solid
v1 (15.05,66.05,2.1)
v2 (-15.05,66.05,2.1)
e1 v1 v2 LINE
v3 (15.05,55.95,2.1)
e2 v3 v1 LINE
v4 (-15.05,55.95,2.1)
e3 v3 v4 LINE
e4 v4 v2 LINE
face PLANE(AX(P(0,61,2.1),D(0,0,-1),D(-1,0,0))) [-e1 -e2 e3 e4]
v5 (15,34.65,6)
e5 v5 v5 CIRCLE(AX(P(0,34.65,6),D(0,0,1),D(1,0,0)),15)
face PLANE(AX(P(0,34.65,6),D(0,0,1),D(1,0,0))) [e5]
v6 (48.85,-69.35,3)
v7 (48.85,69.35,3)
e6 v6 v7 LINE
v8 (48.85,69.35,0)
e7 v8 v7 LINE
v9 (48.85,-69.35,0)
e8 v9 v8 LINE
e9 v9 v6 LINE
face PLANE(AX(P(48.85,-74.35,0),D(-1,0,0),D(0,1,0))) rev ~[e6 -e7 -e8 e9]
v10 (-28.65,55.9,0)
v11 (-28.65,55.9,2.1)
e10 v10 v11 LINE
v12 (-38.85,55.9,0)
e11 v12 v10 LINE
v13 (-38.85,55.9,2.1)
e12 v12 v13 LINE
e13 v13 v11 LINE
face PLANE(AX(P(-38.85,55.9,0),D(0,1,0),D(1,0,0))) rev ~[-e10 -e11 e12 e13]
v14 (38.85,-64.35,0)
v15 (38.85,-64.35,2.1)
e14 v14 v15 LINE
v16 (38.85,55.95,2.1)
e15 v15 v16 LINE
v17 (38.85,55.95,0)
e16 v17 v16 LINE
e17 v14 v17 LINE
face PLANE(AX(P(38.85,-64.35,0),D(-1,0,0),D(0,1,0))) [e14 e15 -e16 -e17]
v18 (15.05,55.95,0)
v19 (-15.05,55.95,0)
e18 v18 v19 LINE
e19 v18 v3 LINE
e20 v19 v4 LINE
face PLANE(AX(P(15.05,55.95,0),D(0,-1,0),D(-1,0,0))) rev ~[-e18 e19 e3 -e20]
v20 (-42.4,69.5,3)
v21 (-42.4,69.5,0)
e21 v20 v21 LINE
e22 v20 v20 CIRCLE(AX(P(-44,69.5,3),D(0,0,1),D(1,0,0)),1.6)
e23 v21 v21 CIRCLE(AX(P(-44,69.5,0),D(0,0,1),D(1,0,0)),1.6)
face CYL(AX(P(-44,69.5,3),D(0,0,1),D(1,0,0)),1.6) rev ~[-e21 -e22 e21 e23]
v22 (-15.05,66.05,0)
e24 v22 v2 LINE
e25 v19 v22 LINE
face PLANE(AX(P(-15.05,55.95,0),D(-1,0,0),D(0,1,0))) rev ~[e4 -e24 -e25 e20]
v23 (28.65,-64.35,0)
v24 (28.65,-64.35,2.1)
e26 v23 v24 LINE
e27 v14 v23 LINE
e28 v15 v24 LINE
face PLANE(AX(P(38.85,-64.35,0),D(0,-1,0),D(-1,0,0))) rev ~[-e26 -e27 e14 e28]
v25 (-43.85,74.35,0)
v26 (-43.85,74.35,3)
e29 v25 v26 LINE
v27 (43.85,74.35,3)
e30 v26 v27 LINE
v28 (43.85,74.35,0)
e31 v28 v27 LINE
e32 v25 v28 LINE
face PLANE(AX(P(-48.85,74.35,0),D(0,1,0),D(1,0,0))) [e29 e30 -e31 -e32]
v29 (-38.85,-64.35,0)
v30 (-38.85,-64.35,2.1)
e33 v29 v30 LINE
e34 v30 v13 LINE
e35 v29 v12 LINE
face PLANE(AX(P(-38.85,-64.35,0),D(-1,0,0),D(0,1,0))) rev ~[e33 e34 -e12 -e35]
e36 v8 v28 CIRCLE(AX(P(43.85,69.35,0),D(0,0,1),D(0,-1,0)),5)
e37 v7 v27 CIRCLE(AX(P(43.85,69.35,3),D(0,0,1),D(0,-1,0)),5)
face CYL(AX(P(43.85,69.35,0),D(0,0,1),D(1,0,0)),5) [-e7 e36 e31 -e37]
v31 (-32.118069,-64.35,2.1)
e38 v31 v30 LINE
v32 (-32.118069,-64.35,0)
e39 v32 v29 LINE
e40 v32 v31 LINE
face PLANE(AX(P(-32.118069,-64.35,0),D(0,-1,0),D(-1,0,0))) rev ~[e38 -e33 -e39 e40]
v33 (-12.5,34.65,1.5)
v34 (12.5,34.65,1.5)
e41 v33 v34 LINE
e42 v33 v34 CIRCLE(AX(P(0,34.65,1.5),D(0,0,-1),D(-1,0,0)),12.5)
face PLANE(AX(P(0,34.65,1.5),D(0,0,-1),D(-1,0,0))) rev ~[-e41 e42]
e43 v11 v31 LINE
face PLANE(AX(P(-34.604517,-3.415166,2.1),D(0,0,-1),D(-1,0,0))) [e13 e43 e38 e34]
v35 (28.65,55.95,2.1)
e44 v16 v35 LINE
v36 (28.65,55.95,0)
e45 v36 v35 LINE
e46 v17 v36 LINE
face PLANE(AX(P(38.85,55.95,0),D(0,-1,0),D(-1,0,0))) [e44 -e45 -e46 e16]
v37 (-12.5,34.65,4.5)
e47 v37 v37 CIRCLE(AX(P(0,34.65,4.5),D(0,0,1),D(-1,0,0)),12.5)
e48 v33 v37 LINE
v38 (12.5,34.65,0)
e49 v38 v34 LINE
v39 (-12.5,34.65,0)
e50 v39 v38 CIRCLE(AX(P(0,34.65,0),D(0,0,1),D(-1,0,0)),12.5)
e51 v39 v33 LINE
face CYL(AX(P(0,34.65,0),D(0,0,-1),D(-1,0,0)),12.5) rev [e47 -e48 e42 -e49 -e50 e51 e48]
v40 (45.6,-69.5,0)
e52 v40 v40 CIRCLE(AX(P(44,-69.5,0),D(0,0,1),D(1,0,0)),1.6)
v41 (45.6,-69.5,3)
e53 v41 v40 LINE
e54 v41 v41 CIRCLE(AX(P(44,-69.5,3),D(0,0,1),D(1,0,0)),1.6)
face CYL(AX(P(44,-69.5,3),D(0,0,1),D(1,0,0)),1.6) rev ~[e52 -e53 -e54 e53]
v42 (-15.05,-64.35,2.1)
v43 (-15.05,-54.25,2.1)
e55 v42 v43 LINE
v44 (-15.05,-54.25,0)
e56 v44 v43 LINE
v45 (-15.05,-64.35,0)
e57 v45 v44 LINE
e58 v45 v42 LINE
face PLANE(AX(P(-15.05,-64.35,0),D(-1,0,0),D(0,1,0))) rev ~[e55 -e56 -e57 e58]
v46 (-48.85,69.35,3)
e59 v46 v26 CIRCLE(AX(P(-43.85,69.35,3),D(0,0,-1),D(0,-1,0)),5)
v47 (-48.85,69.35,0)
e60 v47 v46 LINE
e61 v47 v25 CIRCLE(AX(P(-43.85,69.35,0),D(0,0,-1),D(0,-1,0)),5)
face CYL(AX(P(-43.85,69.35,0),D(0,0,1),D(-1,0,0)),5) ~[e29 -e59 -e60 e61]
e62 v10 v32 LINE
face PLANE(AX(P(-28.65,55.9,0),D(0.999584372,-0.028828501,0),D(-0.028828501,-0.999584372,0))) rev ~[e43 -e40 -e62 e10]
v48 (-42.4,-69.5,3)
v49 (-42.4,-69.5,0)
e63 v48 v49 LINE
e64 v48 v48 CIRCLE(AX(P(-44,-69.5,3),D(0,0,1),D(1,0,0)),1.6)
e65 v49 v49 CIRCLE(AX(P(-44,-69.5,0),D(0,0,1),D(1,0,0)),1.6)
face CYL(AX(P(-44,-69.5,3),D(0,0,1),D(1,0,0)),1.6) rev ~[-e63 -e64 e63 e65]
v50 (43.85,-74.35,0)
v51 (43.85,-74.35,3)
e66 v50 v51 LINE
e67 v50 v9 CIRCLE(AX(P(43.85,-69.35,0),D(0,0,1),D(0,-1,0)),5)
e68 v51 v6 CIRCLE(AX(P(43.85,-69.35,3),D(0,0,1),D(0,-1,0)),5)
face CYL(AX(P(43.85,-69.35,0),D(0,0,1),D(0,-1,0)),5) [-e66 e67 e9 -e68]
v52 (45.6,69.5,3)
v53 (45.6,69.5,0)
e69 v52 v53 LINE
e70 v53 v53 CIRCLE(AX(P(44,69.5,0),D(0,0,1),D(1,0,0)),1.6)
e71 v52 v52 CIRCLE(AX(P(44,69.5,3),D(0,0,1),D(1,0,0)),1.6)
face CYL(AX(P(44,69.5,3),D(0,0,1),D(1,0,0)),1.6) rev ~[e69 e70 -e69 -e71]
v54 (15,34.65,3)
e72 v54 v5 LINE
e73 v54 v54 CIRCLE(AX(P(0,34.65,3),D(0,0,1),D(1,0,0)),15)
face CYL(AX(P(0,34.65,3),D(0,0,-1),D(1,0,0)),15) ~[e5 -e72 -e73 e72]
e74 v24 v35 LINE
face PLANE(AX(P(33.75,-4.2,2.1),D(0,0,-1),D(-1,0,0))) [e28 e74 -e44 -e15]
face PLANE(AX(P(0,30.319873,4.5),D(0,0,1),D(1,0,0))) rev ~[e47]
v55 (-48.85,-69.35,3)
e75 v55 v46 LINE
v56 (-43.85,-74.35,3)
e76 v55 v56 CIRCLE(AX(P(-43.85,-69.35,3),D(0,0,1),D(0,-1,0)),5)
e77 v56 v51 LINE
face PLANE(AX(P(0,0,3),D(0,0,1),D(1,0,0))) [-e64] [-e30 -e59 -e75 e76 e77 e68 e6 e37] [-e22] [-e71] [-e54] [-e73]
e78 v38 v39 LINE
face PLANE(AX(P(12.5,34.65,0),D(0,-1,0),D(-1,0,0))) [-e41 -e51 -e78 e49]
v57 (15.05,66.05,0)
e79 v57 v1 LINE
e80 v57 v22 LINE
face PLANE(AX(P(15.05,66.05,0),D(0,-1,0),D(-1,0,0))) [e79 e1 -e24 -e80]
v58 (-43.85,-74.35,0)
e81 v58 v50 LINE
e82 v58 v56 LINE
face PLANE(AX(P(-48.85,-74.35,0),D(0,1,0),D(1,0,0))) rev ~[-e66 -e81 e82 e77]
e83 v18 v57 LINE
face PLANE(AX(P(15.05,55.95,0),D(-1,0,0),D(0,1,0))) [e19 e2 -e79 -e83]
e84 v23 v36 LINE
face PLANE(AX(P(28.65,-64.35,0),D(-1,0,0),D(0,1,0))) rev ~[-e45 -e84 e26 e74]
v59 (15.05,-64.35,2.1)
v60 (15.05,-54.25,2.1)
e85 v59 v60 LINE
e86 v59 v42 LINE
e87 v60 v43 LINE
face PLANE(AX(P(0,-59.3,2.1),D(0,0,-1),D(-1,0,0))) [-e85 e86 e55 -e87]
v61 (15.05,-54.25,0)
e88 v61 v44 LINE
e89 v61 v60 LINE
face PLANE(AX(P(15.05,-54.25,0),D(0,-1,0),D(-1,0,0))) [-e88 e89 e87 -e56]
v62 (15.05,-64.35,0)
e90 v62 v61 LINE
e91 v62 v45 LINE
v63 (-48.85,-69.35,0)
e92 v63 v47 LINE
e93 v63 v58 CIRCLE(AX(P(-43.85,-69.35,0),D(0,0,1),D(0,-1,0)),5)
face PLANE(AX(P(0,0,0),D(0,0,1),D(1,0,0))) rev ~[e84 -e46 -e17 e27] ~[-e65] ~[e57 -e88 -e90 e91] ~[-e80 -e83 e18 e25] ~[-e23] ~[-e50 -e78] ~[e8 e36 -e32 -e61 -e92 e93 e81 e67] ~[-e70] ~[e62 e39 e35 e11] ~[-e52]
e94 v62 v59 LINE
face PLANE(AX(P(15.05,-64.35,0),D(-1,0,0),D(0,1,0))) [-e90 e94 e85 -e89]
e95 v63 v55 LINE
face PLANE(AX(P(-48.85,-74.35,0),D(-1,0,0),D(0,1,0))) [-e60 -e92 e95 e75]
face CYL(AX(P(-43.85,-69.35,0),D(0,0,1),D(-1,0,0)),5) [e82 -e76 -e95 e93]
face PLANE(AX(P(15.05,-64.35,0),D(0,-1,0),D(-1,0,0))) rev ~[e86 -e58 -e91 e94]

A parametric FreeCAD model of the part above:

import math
import FreeCAD as App
import Part
import Sketcher
from FreeCAD import Vector


def edges_at(feature, points):
    """Names of the edges that pass closest to the given points."""
    edges = feature.Shape.Edges
    near = lambda p: min(range(len(edges)), key=lambda i: edges[i].distToShape(Part.Vertex(*p))[0])
    return sorted({f"Edge{near(p) + 1}" for p in points})

doc = App.newDocument("Part")
body = doc.addObject("PartDesign::Body", "Body")

# Sketch on XY plane
sketch1 = body.newObject("Sketcher::SketchObject", "Sketch")
sketch1.AttachmentSupport = (doc.getObject("XY_Plane"), [""])
sketch1.MapMode = "FlatFace"
sketch1.addGeometry([
    Part.LineSegment(Vector(-49, 74, 0), Vector(-49, -74, 0)),
    Part.LineSegment(Vector(-49, -74, 0), Vector(49, -74, 0)),
    Part.LineSegment(Vector(49, -74, 0), Vector(49, 74, 0)),
    Part.LineSegment(Vector(49, 74, 0), Vector(-49, 74, 0)),
], False)
sketch1.addConstraint([
    Sketcher.Constraint("Coincident", 0, 2, 1, 1),
    Sketcher.Constraint("Coincident", 1, 2, 2, 1),
    Sketcher.Constraint("Coincident", 2, 2, 3, 1),
    Sketcher.Constraint("Coincident", 3, 2, 0, 1),
    Sketcher.Constraint("Vertical", 0),
    Sketcher.Constraint("Horizontal", 1),
    Sketcher.Constraint("Vertical", 2),
    Sketcher.Constraint("Horizontal", 3),
    Sketcher.Constraint("Symmetric", 0, 2, 2, 2, -1, 1),
    Sketcher.Constraint("DistanceX", 1, 1, 1, 2, 97.7),
    Sketcher.Constraint("DistanceY", 0, 2, 0, 1, 148.7),
])
pad1 = body.newObject("PartDesign::Pad", "Pad")
pad1.Profile = sketch1
pad1.Length = 3
doc.recompute()

fillet = body.newObject("PartDesign::Fillet", "Fillet")
fillet.Base = (pad1, edges_at(pad1, [
    (-48.85, 74.35, 1.5),
    (48.85, 74.35, 1.5),
    (48.85, -74.35, 1.5),
    (-48.85, -74.35, 1.5),
]))
fillet.Radius = 5

# Sketch on XY plane
sketch2 = body.newObject("Sketcher::SketchObject", "Sketch001")
sketch2.AttachmentSupport = (doc.getObject("XY_Plane"), [""])
sketch2.MapMode = "FlatFace"
sketch2.AttachmentOffset = App.Placement(Vector(0, 0, 3), App.Rotation())
sketch2.addGeometry(Part.Circle(Vector(-44, 69.5, 0), Vector(0, 0, 1), 1.6), False)
sketch2.addConstraint([
    Sketcher.Constraint("Diameter", 0, 3.2),
    Sketcher.Constraint("DistanceX", 0, 3, -1, 1, 44.0),
    Sketcher.Constraint("DistanceY", -1, 1, 0, 3, 69.5),
])
pocket1 = body.newObject("PartDesign::Pocket", "Pocket")
pocket1.Profile = sketch2
pocket1.Type = "UpToFirst"

# Sketch on XY plane
sketch3 = body.newObject("Sketcher::SketchObject", "Sketch002")
sketch3.AttachmentSupport = (doc.getObject("XY_Plane"), [""])
sketch3.MapMode = "FlatFace"
sketch3.AttachmentOffset = App.Placement(Vector(0, 0, 3), App.Rotation())
sketch3.addGeometry(Part.Circle(Vector(44, 69.5, 0), Vector(0, 0, 1), 1.6), False)
sketch3.addConstraint([
    Sketcher.Constraint("Diameter", 0, 3.2),
    Sketcher.Constraint("DistanceX", -1, 1, 0, 3, 44.0),
    Sketcher.Constraint("DistanceY", -1, 1, 0, 3, 69.5),
])
pocket2 = body.newObject("PartDesign::Pocket", "Pocket001")
pocket2.Profile = sketch3
pocket2.Type = "UpToFirst"

# Sketch on XY plane
sketch4 = body.newObject("Sketcher::SketchObject", "Sketch003")
sketch4.AttachmentSupport = (doc.getObject("XY_Plane"), [""])
sketch4.MapMode = "FlatFace"
sketch4.AttachmentOffset = App.Placement(Vector(0, 0, 3), App.Rotation())
sketch4.addGeometry(Part.Circle(Vector(-44, -69.5, 0), Vector(0, 0, 1), 1.6), False)
sketch4.addConstraint([
    Sketcher.Constraint("Diameter", 0, 3.2),
    Sketcher.Constraint("DistanceX", 0, 3, -1, 1, 44.0),
    Sketcher.Constraint("DistanceY", 0, 3, -1, 1, 69.5),
])
pocket3 = body.newObject("PartDesign::Pocket", "Pocket002")
pocket3.Profile = sketch4
pocket3.Type = "UpToFirst"

# Sketch on XY plane
sketch5 = body.newObject("Sketcher::SketchObject", "Sketch004")
sketch5.AttachmentSupport = (doc.getObject("XY_Plane"), [""])
sketch5.MapMode = "FlatFace"
sketch5.AttachmentOffset = App.Placement(Vector(0, 0, 3), App.Rotation())
sketch5.addGeometry(Part.Circle(Vector(44, -69.5, 0), Vector(0, 0, 1), 1.6), False)
sketch5.addConstraint([
    Sketcher.Constraint("Diameter", 0, 3.2),
    Sketcher.Constraint("DistanceX", -1, 1, 0, 3, 44.0),
    Sketcher.Constraint("DistanceY", 0, 3, -1, 1, 69.5),
])
pocket4 = body.newObject("PartDesign::Pocket", "Pocket003")
pocket4.Profile = sketch5
pocket4.Type = "UpToFirst"

# Sketch on XY plane
sketch6 = body.newObject("Sketcher::SketchObject", "Sketch005")
sketch6.AttachmentSupport = (doc.getObject("XY_Plane"), [""])
sketch6.MapMode = "FlatFace"
sketch6.AttachmentOffset = App.Placement(Vector(0, 0, 3), App.Rotation())
sketch6.addGeometry(Part.Circle(Vector(0, 35, 0), Vector(0, 0, 1), 15), False)
sketch6.addConstraint([
    Sketcher.Constraint("PointOnObject", 0, 3, -2),
    Sketcher.Constraint("Diameter", 0, 30.0),
    Sketcher.Constraint("DistanceY", -1, 1, 0, 3, 34.65),
])
pad2 = body.newObject("PartDesign::Pad", "Pad001")
pad2.Profile = sketch6
pad2.Length = 3

# Sketch on XY plane
sketch7 = body.newObject("Sketcher::SketchObject", "Sketch006")
sketch7.AttachmentSupport = (doc.getObject("XY_Plane"), [""])
sketch7.MapMode = "FlatFace"
sketch7.addGeometry([
    Part.LineSegment(Vector(-12, 35, 0), Vector(12, 35, 0)),
    Part.ArcOfCircle(Part.Circle(Vector(0, 35, 0), Vector(0, 0, 1), 12), math.radians(180), math.radians(360)),
], False)
sketch7.addConstraint([
    Sketcher.Constraint("Coincident", 0, 1, 1, 1),
    Sketcher.Constraint("Coincident", 1, 2, 0, 2),
    Sketcher.Constraint("Horizontal", 0),
    Sketcher.Constraint("PointOnObject", 1, 3, -2),
    Sketcher.Constraint("Horizontal", 1, 3, 0, 1),
    Sketcher.Constraint("Radius", 1, 12.5),
    Sketcher.Constraint("DistanceY", -1, 1, 1, 3, 34.65),
])
pocket5 = body.newObject("PartDesign::Pocket", "Pocket004")
pocket5.Profile = sketch7
pocket5.Length = 4.5
pocket5.Reversed = True

# Sketch on XY plane
sketch8 = body.newObject("Sketcher::SketchObject", "Sketch007")
sketch8.AttachmentSupport = (doc.getObject("XY_Plane"), [""])
sketch8.MapMode = "FlatFace"
sketch8.AttachmentOffset = App.Placement(Vector(0, 0, 1.5), App.Rotation())
sketch8.addGeometry(Part.Circle(Vector(0, 35, 0), Vector(0, 0, 1), 12), False)
sketch8.addConstraint([
    Sketcher.Constraint("PointOnObject", 0, 3, -2),
    Sketcher.Constraint("Diameter", 0, 25.0),
    Sketcher.Constraint("DistanceY", -1, 1, 0, 3, 34.65),
])
pocket6 = body.newObject("PartDesign::Pocket", "Pocket005")
pocket6.Profile = sketch8
pocket6.Length = 3
pocket6.Reversed = True

# Sketch on XY plane
sketch9 = body.newObject("Sketcher::SketchObject", "Sketch008")
sketch9.AttachmentSupport = (doc.getObject("XY_Plane"), [""])
sketch9.MapMode = "FlatFace"
sketch9.addGeometry([
    Part.LineSegment(Vector(39, 56, 0), Vector(39, -64, 0)),  # 0
    Part.LineSegment(Vector(39, -64, 0), Vector(29, -64, 0)),  # 1
    Part.LineSegment(Vector(29, -64, 0), Vector(29, 56, 0)),  # 2
    Part.LineSegment(Vector(29, 56, 0), Vector(39, 56, 0)),  # 3
    Part.LineSegment(Vector(-29, 56, 0), Vector(-32, -64, 0)),  # 4
    Part.LineSegment(Vector(-32, -64, 0), Vector(-39, -64, 0)),  # 5
    Part.LineSegment(Vector(-39, -64, 0), Vector(-39, 56, 0)),  # 6
    Part.LineSegment(Vector(-39, 56, 0), Vector(-29, 56, 0)),  # 7
    Part.LineSegment(Vector(15, 66, 0), Vector(15, 56, 0)),  # 8
    Part.LineSegment(Vector(15, 56, 0), Vector(-15, 56, 0)),  # 9
    Part.LineSegment(Vector(-15, 56, 0), Vector(-15, 66, 0)),  # 10
    Part.LineSegment(Vector(-15, 66, 0), Vector(15, 66, 0)),  # 11
    Part.LineSegment(Vector(15, -54, 0), Vector(15, -64, 0)),  # 12
    Part.LineSegment(Vector(15, -64, 0), Vector(-15, -64, 0)),  # 13
    Part.LineSegment(Vector(-15, -64, 0), Vector(-15, -54, 0)),  # 14
    Part.LineSegment(Vector(-15, -54, 0), Vector(15, -54, 0)),  # 15
], False)
sketch9.addConstraint([
    Sketcher.Constraint("Coincident", 0, 2, 1, 1),
    Sketcher.Constraint("Coincident", 1, 2, 2, 1),
    Sketcher.Constraint("Coincident", 2, 2, 3, 1),
    Sketcher.Constraint("Coincident", 3, 2, 0, 1),
    Sketcher.Constraint("Coincident", 4, 2, 5, 1),
    Sketcher.Constraint("Coincident", 5, 2, 6, 1),
    Sketcher.Constraint("Coincident", 6, 2, 7, 1),
    Sketcher.Constraint("Coincident", 7, 2, 4, 1),
    Sketcher.Constraint("Coincident", 8, 2, 9, 1),
    Sketcher.Constraint("Coincident", 9, 2, 10, 1),
    Sketcher.Constraint("Coincident", 10, 2, 11, 1),
    Sketcher.Constraint("Coincident", 11, 2, 8, 1),
    Sketcher.Constraint("Coincident", 12, 2, 13, 1),
    Sketcher.Constraint("Coincident", 13, 2, 14, 1),
    Sketcher.Constraint("Coincident", 14, 2, 15, 1),
    Sketcher.Constraint("Coincident", 15, 2, 12, 1),
    Sketcher.Constraint("Vertical", 0),
    Sketcher.Constraint("Horizontal", 1),
    Sketcher.Constraint("Vertical", 2),
    Sketcher.Constraint("Horizontal", 3),
    Sketcher.Constraint("Horizontal", 5),
    Sketcher.Constraint("Vertical", 6),
    Sketcher.Constraint("Horizontal", 7),
    Sketcher.Constraint("Vertical", 8),
    Sketcher.Constraint("Horizontal", 9),
    Sketcher.Constraint("Vertical", 10),
    Sketcher.Constraint("Horizontal", 11),
    Sketcher.Constraint("Vertical", 12),
    Sketcher.Constraint("Horizontal", 13),
    Sketcher.Constraint("Vertical", 14),
    Sketcher.Constraint("Horizontal", 15),
    Sketcher.Constraint("Symmetric", 0, 2, 5, 2, -2),
    Sketcher.Constraint("Horizontal", 3, 2, 8, 2),
    Sketcher.Constraint("Horizontal", 5, 2, 12, 2),
    Sketcher.Constraint("Vertical", 11, 2, 12, 2),
    Sketcher.Constraint("Vertical", 10, 2, 13, 2),
    Sketcher.Constraint("Equal", 3, 7),
    Sketcher.Constraint("Equal", 10, 12),
    Sketcher.Constraint("DistanceX", 1, 2, 1, 1, 10.2),
    Sketcher.Constraint("DistanceX", 9, 2, 9, 1, 30.1),
    Sketcher.Constraint("DistanceY", 0, 2, 0, 1, 120.3),
    Sketcher.Constraint("DistanceY", 8, 2, 8, 1, 10.1),
    Sketcher.Constraint("Distance", 4, 120.3),
    Sketcher.Constraint("DistanceY", 6, 1, 6, 2, 120.25),
    Sketcher.Constraint("DistanceY", -1, 1, 6, 2, 55.9),
    Sketcher.Constraint("DistanceX", 5, 2, 1, 2, 67.5),
    Sketcher.Constraint("DistanceX", 8, 2, 2, 2, 13.6),
])
pocket7 = body.newObject("PartDesign::Pocket", "Pocket006")
pocket7.Profile = sketch9
pocket7.Length = 2.1
pocket7.Reversed = True

doc.recompute()
